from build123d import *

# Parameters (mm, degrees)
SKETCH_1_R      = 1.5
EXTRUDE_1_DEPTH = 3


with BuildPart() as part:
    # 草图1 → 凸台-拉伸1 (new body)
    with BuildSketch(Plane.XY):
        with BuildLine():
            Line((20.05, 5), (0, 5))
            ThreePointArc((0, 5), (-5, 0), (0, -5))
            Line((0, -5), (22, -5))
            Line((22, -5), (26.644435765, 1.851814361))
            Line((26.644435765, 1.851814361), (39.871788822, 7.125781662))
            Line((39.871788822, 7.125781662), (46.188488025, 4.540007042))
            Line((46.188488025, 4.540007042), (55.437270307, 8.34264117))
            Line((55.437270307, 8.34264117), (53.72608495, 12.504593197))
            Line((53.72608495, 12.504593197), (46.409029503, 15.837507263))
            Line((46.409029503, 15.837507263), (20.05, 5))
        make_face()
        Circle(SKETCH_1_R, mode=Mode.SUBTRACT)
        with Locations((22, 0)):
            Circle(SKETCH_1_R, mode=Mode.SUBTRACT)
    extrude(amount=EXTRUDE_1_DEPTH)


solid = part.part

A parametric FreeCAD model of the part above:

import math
import FreeCAD as App
import Part
import Sketcher

V = App.Vector
Q = App.Units.Quantity

doc = App.newDocument("Part")
body = doc.addObject("PartDesign::Body", "Body")

# Sketch on XY plane
sketch1 = body.newObject("Sketcher::SketchObject", "Sketch")
sketch1.AttachmentSupport = (doc.getObject("XY_Plane"), [""])
sketch1.MapMode = "FlatFace"
sketch1.addGeometry(Part.LineSegment(V(20.1, 5, 0), V(0, 5, 0)), False)
sketch1.addGeometry(Part.ArcOfCircle(Part.Circle(V(0, 0, 0), V(0, 0, 1), 5), math.radians(90), math.radians(270)), False)
sketch1.addGeometry(Part.LineSegment(V(0, -5, 0), V(22, -5, 0)), False)
sketch1.addGeometry(Part.LineSegment(V(22, -5, 0), V(26.6, 1.9, 0)), False)
sketch1.addGeometry(Part.LineSegment(V(26.6, 1.9, 0), V(39.9, 7.1, 0)), False)
sketch1.addGeometry(Part.LineSegment(V(39.9, 7.1, 0), V(46.2, 4.5, 0)), False)
sketch1.addGeometry(Part.LineSegment(V(46.2, 4.5, 0), V(55.4, 8.3, 0)), False)
sketch1.addGeometry(Part.LineSegment(V(55.4, 8.3, 0), V(53.7, 12.5, 0)), False)
sketch1.addGeometry(Part.LineSegment(V(53.7, 12.5, 0), V(46.4, 15.8, 0)), False)
sketch1.addGeometry(Part.LineSegment(V(46.4, 15.8, 0), V(20.1, 5, 0)), False)
sketch1.addGeometry(Part.Circle(V(0, 0, 0), V(0, 0, 1), 1.5), False)
sketch1.addGeometry(Part.Circle(V(22, 0, 0), V(0, 0, 1), 1.5), False)
sketch1.addConstraint(Sketcher.Constraint("Tangent", 0, 2, 1, 1))
sketch1.addConstraint(Sketcher.Constraint("Tangent", 1, 2, 2, 1))
sketch1.addConstraint(Sketcher.Constraint("Coincident", 2, 2, 3, 1))
sketch1.addConstraint(Sketcher.Constraint("Coincident", 3, 2, 4, 1))
sketch1.addConstraint(Sketcher.Constraint("Coincident", 4, 2, 5, 1))
sketch1.addConstraint(Sketcher.Constraint("Coincident", 5, 2, 6, 1))
sketch1.addConstraint(Sketcher.Constraint("Coincident", 6, 2, 7, 1))
sketch1.addConstraint(Sketcher.Constraint("Coincident", 7, 2, 8, 1))
sketch1.addConstraint(Sketcher.Constraint("Coincident", 8, 2, 9, 1))
sketch1.addConstraint(Sketcher.Constraint("Coincident", 9, 2, 0, 1))
sketch1.addConstraint(Sketcher.Constraint("Horizontal", 0))
sketch1.addConstraint(Sketcher.Constraint("Horizontal", 2))
sketch1.addConstraint(Sketcher.Constraint("Coincident", 1, 3, -1, 1))
sketch1.addConstraint(Sketcher.Constraint("Coincident", 10, 3, -1, 1))
sketch1.addConstraint(Sketcher.Constraint("Equal", 10, 11))
sketch1.addConstraint(Sketcher.Constraint("PointOnObject", 11, 3, -1))
sketch1.addConstraint(Sketcher.Constraint("Perpendicular", 6, 7))
sketch1.addConstraint(Sketcher.Constraint("Perpendicular", 7, 9))
sketch1.addConstraint(Sketcher.Constraint("Vertical", 11, 3, 2, 2))
sketch1.addConstraint(Sketcher.Constraint("Diameter", 10, Q("3 mm")))
sketch1.addConstraint(Sketcher.Constraint("Radius", 1, Q("5 mm")))
sketch1.addConstraint(Sketcher.Constraint("DistanceX", 2, 1, 2, 2, Q("22 mm")))
sketch1.addConstraint(Sketcher.Constraint("Distance", 6, Q("10 mm")))
sketch1.addConstraint(Sketcher.Constraint("Distance", 7, Q("4.5 mm")))
sketch1.addConstraint(Sketcher.Constraint("Distance", 9, Q("28.5 mm")))
sketch1.addConstraint(Sketcher.Constraint("DistanceX", 0, 2, 0, 1, Q("20.05 mm")))
sketch1.addConstraint(Sketcher.Constraint("Angle", 6, Q("22.35 deg")))
sketch1.addConstraint(Sketcher.Constraint("Distance", 4, Q("14.24 mm")))
sketch1.addConstraint(Sketcher.Constraint("DistanceX", 4, 2, 5, 2, Q("6.316699 mm")))
sketch1.addConstraint(Sketcher.Constraint("DistanceY", 5, 2, 8, 2, Q("11.2975 mm")))
sketch1.addConstraint(Sketcher.Constraint("Distance", 3, Q("8.277569 mm")))
sketch1.addConstraint(Sketcher.Constraint("Distance", 5, Q("6.825461 mm")))
sketch1.addConstraint(Sketcher.Constraint("DistanceX", -1, 1, 4, 2, Q("39.871789 mm")))
pad1 = body.newObject("PartDesign::Pad", "Pad")
pad1.Profile = sketch1
pad1.Length = 3

doc.recompute()
